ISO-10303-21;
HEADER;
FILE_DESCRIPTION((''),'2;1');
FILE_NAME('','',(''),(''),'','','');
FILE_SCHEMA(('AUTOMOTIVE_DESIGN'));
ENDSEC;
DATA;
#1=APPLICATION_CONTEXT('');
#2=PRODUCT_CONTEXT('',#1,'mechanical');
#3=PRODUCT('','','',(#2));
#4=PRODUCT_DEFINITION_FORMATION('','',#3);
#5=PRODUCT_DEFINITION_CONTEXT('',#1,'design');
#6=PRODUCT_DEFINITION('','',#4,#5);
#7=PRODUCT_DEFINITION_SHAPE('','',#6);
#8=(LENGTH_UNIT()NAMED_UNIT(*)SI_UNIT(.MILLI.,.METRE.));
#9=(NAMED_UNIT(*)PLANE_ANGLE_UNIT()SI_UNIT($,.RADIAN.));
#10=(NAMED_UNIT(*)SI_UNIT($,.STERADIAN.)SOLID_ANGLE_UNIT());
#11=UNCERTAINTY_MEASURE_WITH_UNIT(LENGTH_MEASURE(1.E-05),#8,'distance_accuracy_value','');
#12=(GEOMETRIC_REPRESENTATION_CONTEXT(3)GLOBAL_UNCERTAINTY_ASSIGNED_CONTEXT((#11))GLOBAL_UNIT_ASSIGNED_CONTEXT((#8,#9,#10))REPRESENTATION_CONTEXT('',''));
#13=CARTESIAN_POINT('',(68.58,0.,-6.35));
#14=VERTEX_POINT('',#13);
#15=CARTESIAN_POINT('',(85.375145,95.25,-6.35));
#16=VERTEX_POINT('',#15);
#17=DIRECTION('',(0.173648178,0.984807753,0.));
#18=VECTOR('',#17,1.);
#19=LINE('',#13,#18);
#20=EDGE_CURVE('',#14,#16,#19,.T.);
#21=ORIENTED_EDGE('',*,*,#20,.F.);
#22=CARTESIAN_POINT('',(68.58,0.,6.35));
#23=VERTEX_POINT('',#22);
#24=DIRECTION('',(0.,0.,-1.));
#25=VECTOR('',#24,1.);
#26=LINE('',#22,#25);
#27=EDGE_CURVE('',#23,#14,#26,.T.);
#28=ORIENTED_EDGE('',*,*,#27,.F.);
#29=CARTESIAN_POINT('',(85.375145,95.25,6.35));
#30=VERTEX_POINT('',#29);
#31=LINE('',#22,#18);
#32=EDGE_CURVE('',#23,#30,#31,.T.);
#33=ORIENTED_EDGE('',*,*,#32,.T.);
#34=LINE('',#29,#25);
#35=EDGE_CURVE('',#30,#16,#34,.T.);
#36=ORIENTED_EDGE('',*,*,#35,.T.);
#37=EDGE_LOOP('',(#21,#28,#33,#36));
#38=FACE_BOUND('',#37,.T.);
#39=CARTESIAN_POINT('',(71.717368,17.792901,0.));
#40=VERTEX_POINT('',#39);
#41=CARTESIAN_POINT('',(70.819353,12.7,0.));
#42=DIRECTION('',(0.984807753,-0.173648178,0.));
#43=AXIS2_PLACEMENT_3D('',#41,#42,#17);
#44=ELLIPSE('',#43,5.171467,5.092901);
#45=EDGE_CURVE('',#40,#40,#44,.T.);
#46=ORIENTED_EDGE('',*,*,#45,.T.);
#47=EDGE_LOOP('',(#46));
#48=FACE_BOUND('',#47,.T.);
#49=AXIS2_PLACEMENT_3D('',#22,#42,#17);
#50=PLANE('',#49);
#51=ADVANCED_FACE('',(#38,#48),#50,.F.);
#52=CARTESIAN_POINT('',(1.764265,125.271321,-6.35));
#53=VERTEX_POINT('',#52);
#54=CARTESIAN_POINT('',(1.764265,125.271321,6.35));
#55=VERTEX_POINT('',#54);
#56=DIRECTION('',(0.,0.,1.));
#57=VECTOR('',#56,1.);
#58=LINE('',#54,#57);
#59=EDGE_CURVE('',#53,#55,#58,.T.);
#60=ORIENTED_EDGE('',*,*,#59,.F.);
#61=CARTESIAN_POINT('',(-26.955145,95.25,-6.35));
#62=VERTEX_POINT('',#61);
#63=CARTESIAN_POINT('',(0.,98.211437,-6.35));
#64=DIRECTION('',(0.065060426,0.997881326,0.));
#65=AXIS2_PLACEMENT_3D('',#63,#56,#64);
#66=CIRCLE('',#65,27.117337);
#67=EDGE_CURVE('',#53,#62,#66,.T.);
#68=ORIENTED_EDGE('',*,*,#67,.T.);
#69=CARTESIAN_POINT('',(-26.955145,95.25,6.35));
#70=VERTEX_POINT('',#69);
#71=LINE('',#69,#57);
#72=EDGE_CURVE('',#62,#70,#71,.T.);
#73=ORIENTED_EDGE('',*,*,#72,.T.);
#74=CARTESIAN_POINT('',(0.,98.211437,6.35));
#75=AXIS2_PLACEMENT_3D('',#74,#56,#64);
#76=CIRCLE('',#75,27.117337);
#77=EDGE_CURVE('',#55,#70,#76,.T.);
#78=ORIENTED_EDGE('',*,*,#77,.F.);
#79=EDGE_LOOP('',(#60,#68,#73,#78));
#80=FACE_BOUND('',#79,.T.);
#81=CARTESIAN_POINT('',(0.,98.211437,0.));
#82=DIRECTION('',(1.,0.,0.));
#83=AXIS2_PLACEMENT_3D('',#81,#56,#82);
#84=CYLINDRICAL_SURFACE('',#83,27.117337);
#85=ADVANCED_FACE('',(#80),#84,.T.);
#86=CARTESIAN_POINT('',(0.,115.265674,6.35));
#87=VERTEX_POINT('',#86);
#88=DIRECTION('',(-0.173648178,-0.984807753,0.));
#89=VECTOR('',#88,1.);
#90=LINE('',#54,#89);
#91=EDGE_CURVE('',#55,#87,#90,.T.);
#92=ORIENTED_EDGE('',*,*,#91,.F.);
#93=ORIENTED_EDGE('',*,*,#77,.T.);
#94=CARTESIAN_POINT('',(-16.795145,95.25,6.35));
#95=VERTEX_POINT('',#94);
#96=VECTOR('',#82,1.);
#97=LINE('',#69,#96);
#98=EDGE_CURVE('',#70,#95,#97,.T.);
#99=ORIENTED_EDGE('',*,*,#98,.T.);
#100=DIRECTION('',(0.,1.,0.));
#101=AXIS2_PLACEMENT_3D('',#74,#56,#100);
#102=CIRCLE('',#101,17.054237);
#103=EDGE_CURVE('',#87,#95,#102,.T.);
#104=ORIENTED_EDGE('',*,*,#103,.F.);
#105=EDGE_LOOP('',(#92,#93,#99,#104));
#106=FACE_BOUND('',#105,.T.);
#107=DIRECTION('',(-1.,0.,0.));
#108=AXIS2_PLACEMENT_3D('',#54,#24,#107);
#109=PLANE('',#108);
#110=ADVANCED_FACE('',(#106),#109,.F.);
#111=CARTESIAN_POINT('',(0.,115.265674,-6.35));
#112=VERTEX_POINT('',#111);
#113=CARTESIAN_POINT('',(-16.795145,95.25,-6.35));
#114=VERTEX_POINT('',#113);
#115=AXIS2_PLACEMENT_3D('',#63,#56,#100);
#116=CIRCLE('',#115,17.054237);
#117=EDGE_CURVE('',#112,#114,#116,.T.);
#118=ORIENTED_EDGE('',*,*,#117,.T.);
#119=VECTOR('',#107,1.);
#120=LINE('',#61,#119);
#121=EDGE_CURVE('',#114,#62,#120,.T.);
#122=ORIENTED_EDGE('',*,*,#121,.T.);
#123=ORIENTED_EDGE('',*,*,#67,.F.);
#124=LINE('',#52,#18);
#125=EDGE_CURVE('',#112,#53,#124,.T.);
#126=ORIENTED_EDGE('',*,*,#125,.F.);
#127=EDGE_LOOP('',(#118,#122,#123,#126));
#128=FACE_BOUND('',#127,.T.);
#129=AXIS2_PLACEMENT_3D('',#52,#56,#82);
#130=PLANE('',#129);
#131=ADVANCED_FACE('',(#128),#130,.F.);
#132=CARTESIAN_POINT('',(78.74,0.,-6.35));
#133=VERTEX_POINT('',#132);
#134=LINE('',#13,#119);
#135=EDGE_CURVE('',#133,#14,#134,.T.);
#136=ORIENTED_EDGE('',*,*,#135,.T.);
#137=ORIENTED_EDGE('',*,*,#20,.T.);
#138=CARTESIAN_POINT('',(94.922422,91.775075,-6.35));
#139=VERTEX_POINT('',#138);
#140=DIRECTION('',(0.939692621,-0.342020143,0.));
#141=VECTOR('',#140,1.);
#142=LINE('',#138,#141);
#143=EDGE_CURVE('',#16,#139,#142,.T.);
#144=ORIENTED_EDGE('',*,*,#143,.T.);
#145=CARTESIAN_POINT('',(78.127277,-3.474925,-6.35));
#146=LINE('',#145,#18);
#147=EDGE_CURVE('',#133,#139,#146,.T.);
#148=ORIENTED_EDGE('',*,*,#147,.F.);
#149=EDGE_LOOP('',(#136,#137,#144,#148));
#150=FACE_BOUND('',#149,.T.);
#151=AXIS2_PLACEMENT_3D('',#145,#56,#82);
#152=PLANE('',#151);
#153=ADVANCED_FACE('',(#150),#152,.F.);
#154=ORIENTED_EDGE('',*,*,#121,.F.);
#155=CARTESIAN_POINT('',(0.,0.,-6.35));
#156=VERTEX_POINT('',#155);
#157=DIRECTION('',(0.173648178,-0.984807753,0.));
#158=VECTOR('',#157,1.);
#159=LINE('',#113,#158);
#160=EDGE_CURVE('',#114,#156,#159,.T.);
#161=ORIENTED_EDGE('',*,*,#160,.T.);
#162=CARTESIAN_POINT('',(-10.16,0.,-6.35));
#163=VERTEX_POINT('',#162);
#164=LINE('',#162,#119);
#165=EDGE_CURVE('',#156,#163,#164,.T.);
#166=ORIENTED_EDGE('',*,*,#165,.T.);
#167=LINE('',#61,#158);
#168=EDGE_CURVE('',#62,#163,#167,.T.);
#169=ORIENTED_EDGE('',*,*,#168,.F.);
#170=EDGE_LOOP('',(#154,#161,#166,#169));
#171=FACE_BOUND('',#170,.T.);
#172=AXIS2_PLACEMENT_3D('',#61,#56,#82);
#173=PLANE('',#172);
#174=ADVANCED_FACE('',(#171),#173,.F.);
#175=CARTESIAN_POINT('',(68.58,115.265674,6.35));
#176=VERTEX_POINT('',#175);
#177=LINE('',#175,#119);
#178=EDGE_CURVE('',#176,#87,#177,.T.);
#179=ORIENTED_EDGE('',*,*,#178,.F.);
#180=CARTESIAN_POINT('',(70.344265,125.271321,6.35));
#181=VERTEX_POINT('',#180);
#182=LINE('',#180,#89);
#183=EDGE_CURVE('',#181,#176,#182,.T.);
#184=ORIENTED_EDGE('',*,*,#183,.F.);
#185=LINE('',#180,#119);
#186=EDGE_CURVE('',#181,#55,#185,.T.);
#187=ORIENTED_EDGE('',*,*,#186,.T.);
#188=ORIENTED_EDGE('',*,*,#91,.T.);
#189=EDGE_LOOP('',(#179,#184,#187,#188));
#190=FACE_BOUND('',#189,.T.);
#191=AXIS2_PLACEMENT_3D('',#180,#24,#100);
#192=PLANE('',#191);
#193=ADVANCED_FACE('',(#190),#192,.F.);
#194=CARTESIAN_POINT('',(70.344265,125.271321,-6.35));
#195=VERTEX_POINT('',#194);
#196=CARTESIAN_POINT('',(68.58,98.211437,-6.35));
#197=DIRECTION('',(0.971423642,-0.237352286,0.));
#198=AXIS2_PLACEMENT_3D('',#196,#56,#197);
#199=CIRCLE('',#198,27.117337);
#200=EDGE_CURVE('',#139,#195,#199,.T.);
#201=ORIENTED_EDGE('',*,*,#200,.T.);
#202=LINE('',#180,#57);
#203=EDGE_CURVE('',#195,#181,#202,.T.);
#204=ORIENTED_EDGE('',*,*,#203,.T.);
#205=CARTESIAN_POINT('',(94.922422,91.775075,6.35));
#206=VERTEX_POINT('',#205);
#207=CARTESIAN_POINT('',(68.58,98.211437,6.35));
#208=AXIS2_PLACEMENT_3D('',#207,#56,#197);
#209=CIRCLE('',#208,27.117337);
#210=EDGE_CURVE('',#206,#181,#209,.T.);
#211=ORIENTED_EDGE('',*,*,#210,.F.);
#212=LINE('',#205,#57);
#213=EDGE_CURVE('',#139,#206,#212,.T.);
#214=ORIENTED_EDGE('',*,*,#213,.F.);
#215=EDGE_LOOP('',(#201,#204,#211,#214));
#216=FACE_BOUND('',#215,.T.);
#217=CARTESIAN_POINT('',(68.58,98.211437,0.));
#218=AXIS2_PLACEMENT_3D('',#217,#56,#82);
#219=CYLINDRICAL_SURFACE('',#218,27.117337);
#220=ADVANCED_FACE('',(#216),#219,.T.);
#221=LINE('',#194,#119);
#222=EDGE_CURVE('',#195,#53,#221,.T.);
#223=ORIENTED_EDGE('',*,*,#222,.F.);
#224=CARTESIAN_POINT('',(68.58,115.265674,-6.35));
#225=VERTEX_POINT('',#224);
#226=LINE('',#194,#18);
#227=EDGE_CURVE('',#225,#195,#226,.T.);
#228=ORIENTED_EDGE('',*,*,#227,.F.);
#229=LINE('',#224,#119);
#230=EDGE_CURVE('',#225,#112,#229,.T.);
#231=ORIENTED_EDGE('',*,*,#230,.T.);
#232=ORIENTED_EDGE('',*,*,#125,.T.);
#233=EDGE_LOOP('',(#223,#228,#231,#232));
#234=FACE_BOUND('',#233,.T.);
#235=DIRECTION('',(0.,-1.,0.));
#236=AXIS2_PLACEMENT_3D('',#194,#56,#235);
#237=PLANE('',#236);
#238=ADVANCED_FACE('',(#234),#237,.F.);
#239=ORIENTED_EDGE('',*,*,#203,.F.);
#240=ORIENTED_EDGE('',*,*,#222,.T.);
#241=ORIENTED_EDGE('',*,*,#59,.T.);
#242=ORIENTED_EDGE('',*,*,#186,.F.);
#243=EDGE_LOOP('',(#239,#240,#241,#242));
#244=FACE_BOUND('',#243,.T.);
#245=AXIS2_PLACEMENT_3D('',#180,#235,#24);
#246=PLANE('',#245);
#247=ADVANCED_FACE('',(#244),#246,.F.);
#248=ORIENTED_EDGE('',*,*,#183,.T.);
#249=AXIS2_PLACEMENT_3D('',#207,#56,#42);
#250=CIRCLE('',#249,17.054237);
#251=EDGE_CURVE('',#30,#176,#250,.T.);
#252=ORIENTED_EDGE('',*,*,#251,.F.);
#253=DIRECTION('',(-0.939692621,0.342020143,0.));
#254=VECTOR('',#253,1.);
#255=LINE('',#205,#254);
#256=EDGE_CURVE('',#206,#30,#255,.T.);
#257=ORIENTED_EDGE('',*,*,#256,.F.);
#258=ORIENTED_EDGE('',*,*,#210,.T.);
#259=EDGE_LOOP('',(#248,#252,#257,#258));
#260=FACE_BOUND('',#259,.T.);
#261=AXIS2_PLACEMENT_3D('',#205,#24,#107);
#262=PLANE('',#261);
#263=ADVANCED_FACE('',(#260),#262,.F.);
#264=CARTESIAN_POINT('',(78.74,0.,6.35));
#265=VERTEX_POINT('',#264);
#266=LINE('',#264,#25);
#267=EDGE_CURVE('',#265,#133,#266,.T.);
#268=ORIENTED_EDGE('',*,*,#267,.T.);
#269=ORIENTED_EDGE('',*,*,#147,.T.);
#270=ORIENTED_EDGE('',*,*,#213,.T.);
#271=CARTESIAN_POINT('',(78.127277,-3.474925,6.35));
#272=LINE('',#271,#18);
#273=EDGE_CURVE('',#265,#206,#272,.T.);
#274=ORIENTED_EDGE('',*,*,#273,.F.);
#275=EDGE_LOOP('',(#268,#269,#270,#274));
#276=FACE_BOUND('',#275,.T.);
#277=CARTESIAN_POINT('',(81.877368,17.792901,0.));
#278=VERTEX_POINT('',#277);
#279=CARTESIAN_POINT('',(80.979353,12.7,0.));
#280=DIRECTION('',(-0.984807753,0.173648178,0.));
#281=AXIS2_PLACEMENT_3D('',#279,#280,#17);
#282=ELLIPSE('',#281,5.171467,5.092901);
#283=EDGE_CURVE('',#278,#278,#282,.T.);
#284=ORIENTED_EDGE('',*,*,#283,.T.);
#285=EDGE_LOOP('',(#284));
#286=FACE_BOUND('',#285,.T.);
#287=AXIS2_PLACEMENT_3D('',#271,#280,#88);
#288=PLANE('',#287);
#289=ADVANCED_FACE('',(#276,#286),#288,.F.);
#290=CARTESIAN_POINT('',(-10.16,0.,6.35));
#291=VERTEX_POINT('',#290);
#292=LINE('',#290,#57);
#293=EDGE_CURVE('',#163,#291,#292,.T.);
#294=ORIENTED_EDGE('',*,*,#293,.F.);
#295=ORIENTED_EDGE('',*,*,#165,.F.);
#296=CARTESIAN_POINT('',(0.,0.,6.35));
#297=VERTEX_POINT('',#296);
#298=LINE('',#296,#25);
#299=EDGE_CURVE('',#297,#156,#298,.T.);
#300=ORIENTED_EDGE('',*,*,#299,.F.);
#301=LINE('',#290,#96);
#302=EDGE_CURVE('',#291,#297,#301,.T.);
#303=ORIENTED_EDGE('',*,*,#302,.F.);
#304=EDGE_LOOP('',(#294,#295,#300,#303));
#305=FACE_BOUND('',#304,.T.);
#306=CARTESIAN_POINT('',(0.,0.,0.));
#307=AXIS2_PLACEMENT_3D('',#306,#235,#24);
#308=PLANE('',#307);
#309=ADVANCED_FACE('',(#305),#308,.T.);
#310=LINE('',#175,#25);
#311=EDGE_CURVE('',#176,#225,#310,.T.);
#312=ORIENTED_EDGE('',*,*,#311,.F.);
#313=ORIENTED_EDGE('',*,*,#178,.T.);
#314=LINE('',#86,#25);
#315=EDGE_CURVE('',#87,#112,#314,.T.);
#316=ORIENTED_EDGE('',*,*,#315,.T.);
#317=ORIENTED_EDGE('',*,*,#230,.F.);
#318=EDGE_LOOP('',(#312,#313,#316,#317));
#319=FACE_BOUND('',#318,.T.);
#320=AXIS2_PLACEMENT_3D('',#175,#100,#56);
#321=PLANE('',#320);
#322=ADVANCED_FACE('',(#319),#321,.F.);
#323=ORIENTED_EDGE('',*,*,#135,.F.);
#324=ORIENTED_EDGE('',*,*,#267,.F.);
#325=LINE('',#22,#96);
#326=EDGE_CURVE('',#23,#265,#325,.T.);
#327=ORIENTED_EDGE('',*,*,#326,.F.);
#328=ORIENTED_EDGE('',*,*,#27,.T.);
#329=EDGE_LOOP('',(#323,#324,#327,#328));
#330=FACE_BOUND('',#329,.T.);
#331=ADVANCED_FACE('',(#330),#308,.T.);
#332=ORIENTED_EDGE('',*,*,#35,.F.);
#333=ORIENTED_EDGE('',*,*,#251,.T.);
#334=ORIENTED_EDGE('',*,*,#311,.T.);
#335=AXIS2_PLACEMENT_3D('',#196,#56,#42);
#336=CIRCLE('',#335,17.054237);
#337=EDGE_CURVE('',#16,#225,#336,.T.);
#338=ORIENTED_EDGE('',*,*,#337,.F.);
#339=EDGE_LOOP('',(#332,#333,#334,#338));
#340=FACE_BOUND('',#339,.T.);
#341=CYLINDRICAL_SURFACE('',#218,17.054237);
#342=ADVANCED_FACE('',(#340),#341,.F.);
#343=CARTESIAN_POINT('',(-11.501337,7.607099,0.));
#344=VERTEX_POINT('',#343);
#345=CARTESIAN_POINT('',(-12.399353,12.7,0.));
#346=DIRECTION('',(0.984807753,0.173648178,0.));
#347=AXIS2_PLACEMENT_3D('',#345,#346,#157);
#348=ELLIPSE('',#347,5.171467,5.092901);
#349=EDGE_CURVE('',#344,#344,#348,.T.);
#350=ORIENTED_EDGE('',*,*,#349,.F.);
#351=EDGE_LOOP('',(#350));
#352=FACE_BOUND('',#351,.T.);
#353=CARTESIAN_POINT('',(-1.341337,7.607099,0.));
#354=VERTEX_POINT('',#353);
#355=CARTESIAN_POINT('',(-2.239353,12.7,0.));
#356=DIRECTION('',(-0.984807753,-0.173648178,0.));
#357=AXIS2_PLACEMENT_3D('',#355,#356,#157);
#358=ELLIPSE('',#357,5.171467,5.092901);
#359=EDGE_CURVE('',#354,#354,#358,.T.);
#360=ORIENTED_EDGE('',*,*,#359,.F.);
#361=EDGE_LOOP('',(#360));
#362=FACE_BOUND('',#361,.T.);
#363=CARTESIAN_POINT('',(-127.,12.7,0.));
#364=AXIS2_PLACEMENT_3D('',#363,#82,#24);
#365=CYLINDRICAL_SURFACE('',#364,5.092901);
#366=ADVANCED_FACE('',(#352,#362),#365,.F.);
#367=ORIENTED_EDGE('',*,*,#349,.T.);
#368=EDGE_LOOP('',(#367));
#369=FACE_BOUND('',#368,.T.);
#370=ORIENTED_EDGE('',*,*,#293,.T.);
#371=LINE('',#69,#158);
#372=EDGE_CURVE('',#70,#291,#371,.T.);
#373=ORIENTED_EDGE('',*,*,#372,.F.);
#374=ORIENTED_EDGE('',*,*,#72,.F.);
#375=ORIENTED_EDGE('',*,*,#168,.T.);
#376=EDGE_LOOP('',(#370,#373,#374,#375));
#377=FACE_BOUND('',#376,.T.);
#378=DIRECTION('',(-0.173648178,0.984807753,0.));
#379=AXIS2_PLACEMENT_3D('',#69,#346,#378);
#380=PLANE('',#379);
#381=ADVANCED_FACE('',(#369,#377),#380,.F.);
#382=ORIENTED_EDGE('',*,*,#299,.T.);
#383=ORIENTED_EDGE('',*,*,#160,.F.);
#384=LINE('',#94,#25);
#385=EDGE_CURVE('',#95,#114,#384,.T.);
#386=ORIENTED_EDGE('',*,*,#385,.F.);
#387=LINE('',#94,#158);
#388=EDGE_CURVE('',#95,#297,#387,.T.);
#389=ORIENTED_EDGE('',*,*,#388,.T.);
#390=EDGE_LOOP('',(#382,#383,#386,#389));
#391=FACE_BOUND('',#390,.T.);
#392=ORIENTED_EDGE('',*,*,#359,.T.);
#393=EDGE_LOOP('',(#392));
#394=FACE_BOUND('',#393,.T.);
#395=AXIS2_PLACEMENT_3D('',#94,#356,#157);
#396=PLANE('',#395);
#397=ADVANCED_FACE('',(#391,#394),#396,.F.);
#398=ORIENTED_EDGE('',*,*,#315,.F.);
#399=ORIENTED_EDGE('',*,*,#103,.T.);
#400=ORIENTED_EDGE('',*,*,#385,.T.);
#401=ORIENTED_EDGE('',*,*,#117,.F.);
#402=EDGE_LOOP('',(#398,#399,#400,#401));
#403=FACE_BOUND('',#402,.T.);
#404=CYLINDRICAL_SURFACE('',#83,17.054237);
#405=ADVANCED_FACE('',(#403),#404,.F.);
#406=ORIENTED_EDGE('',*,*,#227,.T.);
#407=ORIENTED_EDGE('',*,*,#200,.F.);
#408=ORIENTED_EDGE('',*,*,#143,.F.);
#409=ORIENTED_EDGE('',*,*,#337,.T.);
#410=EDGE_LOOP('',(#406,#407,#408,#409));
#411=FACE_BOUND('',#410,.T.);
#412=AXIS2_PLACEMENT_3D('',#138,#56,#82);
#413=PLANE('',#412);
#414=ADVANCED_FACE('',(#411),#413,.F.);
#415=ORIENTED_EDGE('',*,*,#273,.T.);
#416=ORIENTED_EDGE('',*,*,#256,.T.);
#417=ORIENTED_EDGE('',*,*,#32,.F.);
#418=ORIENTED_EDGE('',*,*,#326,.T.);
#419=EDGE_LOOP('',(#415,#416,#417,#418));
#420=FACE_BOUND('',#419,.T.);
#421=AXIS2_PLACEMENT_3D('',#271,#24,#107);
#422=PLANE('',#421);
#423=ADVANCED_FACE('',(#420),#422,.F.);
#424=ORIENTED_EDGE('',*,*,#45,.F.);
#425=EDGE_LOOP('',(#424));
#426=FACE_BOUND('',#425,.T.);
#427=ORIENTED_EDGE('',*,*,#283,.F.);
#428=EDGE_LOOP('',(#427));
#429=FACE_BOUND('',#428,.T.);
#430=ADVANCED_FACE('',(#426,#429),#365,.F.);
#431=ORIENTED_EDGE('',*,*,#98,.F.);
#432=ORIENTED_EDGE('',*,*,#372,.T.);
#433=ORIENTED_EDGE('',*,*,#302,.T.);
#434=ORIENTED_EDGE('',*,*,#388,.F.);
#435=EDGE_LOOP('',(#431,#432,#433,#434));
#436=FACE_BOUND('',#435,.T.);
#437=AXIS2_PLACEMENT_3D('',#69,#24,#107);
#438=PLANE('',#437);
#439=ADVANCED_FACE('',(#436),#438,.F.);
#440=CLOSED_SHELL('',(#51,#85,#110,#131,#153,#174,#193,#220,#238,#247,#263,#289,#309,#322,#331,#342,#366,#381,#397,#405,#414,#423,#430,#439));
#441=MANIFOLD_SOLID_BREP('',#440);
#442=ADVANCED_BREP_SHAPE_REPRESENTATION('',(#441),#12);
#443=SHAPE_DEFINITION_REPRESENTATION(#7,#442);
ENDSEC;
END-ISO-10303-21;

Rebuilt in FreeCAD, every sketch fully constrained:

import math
import FreeCAD as App
import Part
import Sketcher
from FreeCAD import Vector
Q = App.Units.Quantity


def add_polygon(sketch, points):
    """Adds a closed chain of lines whose ends are joined by coincident constraints."""
    first, n = sketch.GeometryCount, len(points)
    for a, b in zip(points, points[1:] + points[:1]):
        sketch.addGeometry(Part.LineSegment(App.Vector(*a, 0), App.Vector(*b, 0)), False)
    for i in range(n):
        sketch.addConstraint(Sketcher.Constraint("Coincident", first + i, 2, first + (i + 1) % n, 1))

doc = App.newDocument("Part")
body = doc.addObject("PartDesign::Body", "Body")

# Sketch on XZ plane
sketch1 = body.newObject("Sketcher::SketchObject", "Sketch")
sketch1.AttachmentSupport = (doc.getObject("XZ_Plane"), [""])
sketch1.MapMode = "FlatFace"
add_polygon(sketch1, [(-10, -6), (-10, 6), (0, 6), (0, -6)])  # lines 0-3
sketch1.addConstraint([
    Sketcher.Constraint("Vertical", 0),
    Sketcher.Constraint("Horizontal", 1),
    Sketcher.Constraint("Vertical", 2),
    Sketcher.Constraint("Horizontal", 3),
    Sketcher.Constraint("Symmetric", 1, 2, 2, 2, -1, 1),
    Sketcher.Constraint("DistanceX", 1, 1, 1, 2, Q("0.4 in")),
    Sketcher.Constraint("DistanceY", 0, 1, 0, 2, Q("0.5 in")),
])

# Sketch on XY plane
sketch2 = body.newObject("Sketcher::SketchObject", "Sketch001")
sketch2.AttachmentSupport = (doc.getObject("XY_Plane"), [""])
sketch2.MapMode = "FlatFace"
sketch2.addGeometry([
    Part.LineSegment(Vector(0, 0, 0), Vector(-17, 95, 0)),  # 0
    Part.ArcOfCircle(Part.Circle(Vector(0, 98, 0), Vector(0, 0, 1), 17), math.radians(90), math.radians(190)),  # 1
    Part.LineSegment(Vector(0, 115, 0), Vector(69, 115, 0)),  # 2
    Part.ArcOfCircle(Part.Circle(Vector(69, 98, 0), Vector(0, 0, 1), 17), math.radians(-10), math.radians(90)),  # 3
    Part.LineSegment(Vector(85, 95, 0), Vector(69, 0, 0)),  # 4
], False)
sketch2.addConstraint([
    Sketcher.Constraint("Tangent", 0, 2, 1, 2),
    Sketcher.Constraint("Tangent", 1, 1, 2, 1),
    Sketcher.Constraint("Tangent", 2, 2, 3, 2),
    Sketcher.Constraint("Tangent", 3, 1, 4, 1),
    Sketcher.Constraint("Horizontal", 2),
    Sketcher.Constraint("Coincident", 0, 1, -1, 1),
    Sketcher.Constraint("Equal", 1, 3),
    Sketcher.Constraint("PointOnObject", 1, 3, -2),
    Sketcher.Constraint("PointOnObject", 4, 2, -1),
    Sketcher.Constraint("Horizontal", 0, 2, 3, 1),
    Sketcher.Constraint("DistanceX", 2, 1, 2, 2, Q("2.7 in")),
    Sketcher.Constraint("Angle", 0, Q("100 deg")),
    Sketcher.Constraint("DistanceY", -1, 1, 0, 2, Q("3.75 in")),
])
doc.recompute()

additivepipe = body.newObject("PartDesign::AdditivePipe", "AdditivePipe")
additivepipe.Profile = sketch1
additivepipe.Spine = (sketch2, ["Edge1", "Edge2", "Edge3", "Edge4", "Edge5"])

# Sketch on XZ plane
sketch3 = body.newObject("Sketcher::SketchObject", "Sketch002")
sketch3.AttachmentSupport = (doc.getObject("XZ_Plane"), [""])
sketch3.MapMode = "FlatFace"
add_polygon(sketch3, [(69, -6), (69, 6), (79, 6), (79, -6)])  # lines 0-3
sketch3.addConstraint([
    Sketcher.Constraint("Vertical", 0),
    Sketcher.Constraint("Horizontal", 1),
    Sketcher.Constraint("Vertical", 2),
    Sketcher.Constraint("Horizontal", 3),
    Sketcher.Constraint("DistanceX", 1, 1, 1, 2, Q("0.4 in")),
    Sketcher.Constraint("DistanceY", 0, 1, 0, 2, Q("0.5 in")),
    Sketcher.Constraint("DistanceX", -1, 1, 0, 2, Q("2.7 in")),
    Sketcher.Constraint("DistanceY", -1, 1, 0, 2, Q("0.25 in")),
])
pocket1 = body.newObject("PartDesign::Pocket", "Pocket")
pocket1.Profile = sketch3
pocket1.Length = Q("0.2 in")
pocket1.Reversed = True

# Sketch on YZ plane
sketch4 = body.newObject("Sketcher::SketchObject", "Sketch003")
sketch4.AttachmentSupport = (doc.getObject("YZ_Plane"), [""])
sketch4.MapMode = "FlatFace"
sketch4.addGeometry(Part.Circle(Vector(13, 0, 0), Vector(0, 0, 1), 5), False)
sketch4.addConstraint([
    Sketcher.Constraint("PointOnObject", 0, 3, -1),
    Sketcher.Constraint("DistanceX", -1, 1, 0, 3, Q("0.5 in")),
    Sketcher.Constraint("Diameter", 0, 10.185801),
])
pocket2 = body.newObject("PartDesign::Pocket", "Pocket001")
pocket2.Profile = sketch4
pocket2.Length = Q("10 in")
pocket2.Midplane = True

doc.recompute()
